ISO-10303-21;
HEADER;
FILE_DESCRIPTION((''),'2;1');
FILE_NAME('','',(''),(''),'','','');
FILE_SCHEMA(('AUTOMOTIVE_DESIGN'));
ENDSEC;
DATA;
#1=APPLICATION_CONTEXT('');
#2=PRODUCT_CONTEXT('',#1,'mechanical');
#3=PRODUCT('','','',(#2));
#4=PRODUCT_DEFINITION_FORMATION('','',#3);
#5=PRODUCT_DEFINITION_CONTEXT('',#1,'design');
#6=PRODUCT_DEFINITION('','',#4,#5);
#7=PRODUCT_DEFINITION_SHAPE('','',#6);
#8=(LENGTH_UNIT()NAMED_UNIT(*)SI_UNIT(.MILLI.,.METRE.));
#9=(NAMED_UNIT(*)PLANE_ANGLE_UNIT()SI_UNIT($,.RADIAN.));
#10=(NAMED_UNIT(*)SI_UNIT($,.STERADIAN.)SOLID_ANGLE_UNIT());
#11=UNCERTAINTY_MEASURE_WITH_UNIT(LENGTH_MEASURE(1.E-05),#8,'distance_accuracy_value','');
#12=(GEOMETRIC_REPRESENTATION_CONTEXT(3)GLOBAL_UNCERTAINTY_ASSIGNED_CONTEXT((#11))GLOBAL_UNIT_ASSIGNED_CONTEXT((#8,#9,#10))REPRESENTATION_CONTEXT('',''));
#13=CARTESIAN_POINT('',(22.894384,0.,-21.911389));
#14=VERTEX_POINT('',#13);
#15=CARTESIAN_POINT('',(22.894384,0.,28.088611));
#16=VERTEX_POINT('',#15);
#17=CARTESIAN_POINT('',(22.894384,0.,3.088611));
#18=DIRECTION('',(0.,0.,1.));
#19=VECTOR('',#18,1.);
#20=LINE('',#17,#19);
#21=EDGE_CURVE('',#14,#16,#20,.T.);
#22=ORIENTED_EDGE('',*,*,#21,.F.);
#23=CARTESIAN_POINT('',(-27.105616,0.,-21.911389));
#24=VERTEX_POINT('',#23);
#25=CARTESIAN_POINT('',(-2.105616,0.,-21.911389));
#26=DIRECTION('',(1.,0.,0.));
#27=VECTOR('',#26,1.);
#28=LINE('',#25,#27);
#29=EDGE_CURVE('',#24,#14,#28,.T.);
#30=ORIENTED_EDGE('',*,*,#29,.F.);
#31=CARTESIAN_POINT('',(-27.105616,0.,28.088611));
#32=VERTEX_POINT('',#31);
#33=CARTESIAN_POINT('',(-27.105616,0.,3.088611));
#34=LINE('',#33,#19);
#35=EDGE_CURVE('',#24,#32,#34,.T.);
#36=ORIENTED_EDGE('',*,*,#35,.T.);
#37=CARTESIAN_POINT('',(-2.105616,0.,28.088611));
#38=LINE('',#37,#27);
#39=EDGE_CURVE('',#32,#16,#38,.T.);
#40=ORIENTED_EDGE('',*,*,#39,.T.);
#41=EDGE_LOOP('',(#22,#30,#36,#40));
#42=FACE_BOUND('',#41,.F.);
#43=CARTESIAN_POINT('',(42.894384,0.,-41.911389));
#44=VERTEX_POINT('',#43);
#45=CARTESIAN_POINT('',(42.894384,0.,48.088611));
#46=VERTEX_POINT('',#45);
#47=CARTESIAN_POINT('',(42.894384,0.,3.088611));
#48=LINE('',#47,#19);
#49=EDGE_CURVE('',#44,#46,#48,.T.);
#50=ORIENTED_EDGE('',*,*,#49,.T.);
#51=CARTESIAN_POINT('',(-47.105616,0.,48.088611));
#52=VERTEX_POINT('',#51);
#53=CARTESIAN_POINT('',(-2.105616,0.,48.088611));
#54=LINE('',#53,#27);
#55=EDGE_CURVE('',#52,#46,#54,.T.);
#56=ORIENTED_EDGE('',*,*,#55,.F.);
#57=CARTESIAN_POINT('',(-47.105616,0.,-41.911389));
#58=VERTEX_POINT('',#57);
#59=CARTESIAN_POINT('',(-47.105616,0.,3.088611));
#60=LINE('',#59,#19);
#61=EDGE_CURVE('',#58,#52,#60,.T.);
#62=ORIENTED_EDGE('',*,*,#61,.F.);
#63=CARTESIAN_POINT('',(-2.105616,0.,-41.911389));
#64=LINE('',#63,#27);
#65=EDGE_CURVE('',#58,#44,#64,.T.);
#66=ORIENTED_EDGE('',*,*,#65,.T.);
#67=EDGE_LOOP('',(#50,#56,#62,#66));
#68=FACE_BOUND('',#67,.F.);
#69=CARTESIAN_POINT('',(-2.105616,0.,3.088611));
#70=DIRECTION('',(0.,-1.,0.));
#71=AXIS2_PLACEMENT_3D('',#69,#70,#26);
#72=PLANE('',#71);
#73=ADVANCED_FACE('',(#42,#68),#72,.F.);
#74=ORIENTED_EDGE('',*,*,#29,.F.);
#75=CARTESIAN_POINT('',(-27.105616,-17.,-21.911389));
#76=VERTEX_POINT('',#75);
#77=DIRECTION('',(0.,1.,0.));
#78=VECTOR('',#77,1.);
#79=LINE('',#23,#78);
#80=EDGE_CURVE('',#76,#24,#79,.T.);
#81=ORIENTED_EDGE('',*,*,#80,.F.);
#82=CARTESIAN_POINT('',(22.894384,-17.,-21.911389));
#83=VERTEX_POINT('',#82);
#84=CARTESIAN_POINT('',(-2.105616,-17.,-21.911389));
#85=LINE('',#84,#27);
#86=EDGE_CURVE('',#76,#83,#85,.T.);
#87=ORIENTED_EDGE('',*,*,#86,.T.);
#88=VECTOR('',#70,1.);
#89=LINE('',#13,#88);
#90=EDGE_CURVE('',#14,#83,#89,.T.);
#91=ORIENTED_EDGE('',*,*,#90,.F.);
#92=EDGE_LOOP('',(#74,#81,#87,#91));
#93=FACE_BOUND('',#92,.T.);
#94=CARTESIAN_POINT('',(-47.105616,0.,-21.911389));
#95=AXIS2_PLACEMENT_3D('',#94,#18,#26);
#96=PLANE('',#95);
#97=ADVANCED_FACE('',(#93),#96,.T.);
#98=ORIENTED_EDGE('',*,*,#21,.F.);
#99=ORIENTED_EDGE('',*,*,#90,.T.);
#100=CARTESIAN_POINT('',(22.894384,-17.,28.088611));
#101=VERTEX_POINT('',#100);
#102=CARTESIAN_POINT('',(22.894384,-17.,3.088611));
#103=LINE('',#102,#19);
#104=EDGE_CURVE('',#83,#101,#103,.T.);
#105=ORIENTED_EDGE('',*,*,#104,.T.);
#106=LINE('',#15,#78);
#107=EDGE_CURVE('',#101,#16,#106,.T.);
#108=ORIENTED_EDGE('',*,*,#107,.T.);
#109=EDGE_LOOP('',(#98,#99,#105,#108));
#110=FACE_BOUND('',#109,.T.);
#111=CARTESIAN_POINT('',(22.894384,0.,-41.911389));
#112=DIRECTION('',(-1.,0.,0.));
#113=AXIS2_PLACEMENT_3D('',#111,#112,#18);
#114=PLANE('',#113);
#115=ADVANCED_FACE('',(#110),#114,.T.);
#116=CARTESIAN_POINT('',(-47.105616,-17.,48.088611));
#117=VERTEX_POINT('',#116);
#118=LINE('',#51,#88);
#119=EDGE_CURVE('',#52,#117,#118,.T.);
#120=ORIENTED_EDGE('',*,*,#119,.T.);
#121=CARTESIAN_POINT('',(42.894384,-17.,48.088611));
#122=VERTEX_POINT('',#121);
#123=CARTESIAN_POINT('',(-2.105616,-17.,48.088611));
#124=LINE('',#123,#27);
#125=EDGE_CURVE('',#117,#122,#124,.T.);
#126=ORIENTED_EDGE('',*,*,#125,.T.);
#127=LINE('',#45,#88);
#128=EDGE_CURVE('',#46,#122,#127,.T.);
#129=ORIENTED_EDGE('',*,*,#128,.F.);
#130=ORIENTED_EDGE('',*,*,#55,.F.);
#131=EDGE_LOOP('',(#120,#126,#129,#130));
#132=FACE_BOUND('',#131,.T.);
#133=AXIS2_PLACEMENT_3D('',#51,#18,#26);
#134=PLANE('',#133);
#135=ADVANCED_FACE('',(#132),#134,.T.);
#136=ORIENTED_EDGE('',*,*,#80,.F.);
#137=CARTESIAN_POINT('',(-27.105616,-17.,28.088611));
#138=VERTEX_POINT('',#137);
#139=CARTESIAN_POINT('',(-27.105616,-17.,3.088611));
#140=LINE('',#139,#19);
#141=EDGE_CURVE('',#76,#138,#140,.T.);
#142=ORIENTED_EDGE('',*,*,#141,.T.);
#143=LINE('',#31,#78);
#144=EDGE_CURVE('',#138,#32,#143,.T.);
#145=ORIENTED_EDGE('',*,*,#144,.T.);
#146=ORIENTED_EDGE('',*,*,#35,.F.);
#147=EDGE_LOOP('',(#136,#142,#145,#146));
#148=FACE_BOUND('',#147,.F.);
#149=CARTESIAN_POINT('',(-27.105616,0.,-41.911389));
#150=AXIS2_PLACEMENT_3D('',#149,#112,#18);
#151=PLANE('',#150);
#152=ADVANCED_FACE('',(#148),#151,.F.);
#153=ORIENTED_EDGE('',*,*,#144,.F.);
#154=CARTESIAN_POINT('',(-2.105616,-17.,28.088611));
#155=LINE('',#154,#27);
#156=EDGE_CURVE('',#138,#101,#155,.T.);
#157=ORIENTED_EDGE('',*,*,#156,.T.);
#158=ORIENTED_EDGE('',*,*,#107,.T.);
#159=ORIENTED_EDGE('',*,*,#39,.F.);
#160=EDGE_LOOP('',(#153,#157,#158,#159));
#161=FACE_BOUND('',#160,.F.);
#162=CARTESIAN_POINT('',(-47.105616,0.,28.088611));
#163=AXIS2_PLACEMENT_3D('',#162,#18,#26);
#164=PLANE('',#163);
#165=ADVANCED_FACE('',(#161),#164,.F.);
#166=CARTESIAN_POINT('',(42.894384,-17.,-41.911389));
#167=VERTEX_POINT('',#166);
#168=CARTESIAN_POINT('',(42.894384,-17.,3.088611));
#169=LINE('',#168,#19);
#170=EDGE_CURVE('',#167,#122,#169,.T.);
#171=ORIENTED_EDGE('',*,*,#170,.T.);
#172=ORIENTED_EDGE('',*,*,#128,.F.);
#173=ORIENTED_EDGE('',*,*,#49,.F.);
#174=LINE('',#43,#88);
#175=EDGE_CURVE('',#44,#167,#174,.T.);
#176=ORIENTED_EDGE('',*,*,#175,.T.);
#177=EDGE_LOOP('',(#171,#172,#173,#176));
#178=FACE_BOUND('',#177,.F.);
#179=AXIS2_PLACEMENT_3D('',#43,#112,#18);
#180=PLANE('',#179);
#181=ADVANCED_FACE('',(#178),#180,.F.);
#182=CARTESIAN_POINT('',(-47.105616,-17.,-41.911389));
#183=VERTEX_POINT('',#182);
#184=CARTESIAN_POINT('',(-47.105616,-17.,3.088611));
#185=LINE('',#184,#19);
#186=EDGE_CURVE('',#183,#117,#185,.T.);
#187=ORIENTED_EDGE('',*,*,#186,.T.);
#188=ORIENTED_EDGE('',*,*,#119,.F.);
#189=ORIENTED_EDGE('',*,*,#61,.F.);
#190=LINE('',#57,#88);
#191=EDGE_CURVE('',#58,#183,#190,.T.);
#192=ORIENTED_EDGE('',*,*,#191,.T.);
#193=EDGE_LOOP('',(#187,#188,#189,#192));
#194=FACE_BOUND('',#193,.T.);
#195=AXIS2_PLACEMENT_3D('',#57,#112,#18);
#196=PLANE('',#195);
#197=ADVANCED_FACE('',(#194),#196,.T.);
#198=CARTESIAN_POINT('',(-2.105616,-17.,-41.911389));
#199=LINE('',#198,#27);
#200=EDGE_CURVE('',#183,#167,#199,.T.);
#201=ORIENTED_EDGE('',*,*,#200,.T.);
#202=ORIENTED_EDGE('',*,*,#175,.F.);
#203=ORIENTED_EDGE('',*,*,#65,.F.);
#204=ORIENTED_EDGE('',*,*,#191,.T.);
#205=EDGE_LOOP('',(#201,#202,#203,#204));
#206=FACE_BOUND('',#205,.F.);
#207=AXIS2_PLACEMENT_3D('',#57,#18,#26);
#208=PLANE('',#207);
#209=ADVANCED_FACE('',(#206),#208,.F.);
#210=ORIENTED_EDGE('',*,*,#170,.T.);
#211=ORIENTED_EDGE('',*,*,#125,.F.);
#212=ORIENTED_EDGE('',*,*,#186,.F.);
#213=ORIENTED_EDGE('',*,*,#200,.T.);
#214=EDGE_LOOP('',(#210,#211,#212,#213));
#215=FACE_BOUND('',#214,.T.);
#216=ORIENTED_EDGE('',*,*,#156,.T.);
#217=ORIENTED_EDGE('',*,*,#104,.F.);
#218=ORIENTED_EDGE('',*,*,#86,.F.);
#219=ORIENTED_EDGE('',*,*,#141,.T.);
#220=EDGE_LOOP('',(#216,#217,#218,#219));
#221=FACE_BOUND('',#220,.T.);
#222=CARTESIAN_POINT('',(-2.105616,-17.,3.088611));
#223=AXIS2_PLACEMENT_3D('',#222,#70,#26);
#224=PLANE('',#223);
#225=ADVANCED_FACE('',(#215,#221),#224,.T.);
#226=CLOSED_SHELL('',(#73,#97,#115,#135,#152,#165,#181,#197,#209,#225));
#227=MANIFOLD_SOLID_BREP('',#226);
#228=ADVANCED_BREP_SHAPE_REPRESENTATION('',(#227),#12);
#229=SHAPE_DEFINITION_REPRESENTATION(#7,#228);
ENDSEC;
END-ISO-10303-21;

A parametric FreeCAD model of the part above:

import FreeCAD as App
import Part
import Sketcher
from FreeCAD import Vector


def faces_at(feature, points):
    """Names of the faces that lie closest to the given points."""
    faces = feature.Shape.Faces
    near = lambda p: min(range(len(faces)), key=lambda i: faces[i].distToShape(Part.Vertex(*p))[0])
    return sorted({f"Face{near(p) + 1}" for p in points})

doc = App.newDocument("Part")
body = doc.addObject("PartDesign::Body", "Body")

sketch1 = doc.addObject("Sketcher::SketchObject", "Sketch")
body.addObject(sketch1)
sketch1.AttachmentSupport = (doc.XZ_Plane, [""])
sketch1.MapMode = "FlatFace"
sketch1.addGeometry(Part.LineSegment(Vector(-47.105616, 48.088611, 0), Vector(-47.105616, -41.911389, 0)), False)
sketch1.addGeometry(Part.LineSegment(Vector(-47.105616, -41.911389, 0), Vector(42.894384, -41.911389, 0)), False)
sketch1.addGeometry(Part.LineSegment(Vector(42.894384, -41.911389, 0), Vector(42.894384, 48.088611, 0)), False)
sketch1.addGeometry(Part.LineSegment(Vector(42.894384, 48.088611, 0), Vector(-47.105616, 48.088611, 0)), False)
sketch1.addConstraint(Sketcher.Constraint("Coincident", 0, 2, 1, 1))
sketch1.addConstraint(Sketcher.Constraint("Coincident", 1, 2, 2, 1))
sketch1.addConstraint(Sketcher.Constraint("Coincident", 2, 2, 3, 1))
sketch1.addConstraint(Sketcher.Constraint("Coincident", 3, 2, 0, 1))
sketch1.addConstraint(Sketcher.Constraint("Vertical", 0))
sketch1.addConstraint(Sketcher.Constraint("Horizontal", 1))
sketch1.addConstraint(Sketcher.Constraint("Vertical", 2))
sketch1.addConstraint(Sketcher.Constraint("Horizontal", 3))
sketch1.addConstraint(Sketcher.Constraint("Equal", 3, 0))
sketch1.addConstraint(Sketcher.Constraint("DistanceX", 1, 1, 1, 2, 90.0))
sketch1.addConstraint(Sketcher.Constraint("DistanceY", 0, 2, -1, 1, 41.911389))
sketch1.addConstraint(Sketcher.Constraint("DistanceX", 0, 2, -1, 1, 47.105616))
pad1 = doc.addObject("PartDesign::Pad", "Pad")
body.addObject(pad1)
pad1.Profile = sketch1
pad1.Length = 17
doc.recompute()

thickness = doc.addObject("PartDesign::Thickness", "Thickness")
body.addObject(thickness)
thickness.Base = (pad1, faces_at(pad1, [(-2.106, 0, 3.089), (-2.106, -17, 3.089)]))
thickness.Value = 20
thickness.Reversed = True
thickness.Join = "Arc"

doc.recompute()
